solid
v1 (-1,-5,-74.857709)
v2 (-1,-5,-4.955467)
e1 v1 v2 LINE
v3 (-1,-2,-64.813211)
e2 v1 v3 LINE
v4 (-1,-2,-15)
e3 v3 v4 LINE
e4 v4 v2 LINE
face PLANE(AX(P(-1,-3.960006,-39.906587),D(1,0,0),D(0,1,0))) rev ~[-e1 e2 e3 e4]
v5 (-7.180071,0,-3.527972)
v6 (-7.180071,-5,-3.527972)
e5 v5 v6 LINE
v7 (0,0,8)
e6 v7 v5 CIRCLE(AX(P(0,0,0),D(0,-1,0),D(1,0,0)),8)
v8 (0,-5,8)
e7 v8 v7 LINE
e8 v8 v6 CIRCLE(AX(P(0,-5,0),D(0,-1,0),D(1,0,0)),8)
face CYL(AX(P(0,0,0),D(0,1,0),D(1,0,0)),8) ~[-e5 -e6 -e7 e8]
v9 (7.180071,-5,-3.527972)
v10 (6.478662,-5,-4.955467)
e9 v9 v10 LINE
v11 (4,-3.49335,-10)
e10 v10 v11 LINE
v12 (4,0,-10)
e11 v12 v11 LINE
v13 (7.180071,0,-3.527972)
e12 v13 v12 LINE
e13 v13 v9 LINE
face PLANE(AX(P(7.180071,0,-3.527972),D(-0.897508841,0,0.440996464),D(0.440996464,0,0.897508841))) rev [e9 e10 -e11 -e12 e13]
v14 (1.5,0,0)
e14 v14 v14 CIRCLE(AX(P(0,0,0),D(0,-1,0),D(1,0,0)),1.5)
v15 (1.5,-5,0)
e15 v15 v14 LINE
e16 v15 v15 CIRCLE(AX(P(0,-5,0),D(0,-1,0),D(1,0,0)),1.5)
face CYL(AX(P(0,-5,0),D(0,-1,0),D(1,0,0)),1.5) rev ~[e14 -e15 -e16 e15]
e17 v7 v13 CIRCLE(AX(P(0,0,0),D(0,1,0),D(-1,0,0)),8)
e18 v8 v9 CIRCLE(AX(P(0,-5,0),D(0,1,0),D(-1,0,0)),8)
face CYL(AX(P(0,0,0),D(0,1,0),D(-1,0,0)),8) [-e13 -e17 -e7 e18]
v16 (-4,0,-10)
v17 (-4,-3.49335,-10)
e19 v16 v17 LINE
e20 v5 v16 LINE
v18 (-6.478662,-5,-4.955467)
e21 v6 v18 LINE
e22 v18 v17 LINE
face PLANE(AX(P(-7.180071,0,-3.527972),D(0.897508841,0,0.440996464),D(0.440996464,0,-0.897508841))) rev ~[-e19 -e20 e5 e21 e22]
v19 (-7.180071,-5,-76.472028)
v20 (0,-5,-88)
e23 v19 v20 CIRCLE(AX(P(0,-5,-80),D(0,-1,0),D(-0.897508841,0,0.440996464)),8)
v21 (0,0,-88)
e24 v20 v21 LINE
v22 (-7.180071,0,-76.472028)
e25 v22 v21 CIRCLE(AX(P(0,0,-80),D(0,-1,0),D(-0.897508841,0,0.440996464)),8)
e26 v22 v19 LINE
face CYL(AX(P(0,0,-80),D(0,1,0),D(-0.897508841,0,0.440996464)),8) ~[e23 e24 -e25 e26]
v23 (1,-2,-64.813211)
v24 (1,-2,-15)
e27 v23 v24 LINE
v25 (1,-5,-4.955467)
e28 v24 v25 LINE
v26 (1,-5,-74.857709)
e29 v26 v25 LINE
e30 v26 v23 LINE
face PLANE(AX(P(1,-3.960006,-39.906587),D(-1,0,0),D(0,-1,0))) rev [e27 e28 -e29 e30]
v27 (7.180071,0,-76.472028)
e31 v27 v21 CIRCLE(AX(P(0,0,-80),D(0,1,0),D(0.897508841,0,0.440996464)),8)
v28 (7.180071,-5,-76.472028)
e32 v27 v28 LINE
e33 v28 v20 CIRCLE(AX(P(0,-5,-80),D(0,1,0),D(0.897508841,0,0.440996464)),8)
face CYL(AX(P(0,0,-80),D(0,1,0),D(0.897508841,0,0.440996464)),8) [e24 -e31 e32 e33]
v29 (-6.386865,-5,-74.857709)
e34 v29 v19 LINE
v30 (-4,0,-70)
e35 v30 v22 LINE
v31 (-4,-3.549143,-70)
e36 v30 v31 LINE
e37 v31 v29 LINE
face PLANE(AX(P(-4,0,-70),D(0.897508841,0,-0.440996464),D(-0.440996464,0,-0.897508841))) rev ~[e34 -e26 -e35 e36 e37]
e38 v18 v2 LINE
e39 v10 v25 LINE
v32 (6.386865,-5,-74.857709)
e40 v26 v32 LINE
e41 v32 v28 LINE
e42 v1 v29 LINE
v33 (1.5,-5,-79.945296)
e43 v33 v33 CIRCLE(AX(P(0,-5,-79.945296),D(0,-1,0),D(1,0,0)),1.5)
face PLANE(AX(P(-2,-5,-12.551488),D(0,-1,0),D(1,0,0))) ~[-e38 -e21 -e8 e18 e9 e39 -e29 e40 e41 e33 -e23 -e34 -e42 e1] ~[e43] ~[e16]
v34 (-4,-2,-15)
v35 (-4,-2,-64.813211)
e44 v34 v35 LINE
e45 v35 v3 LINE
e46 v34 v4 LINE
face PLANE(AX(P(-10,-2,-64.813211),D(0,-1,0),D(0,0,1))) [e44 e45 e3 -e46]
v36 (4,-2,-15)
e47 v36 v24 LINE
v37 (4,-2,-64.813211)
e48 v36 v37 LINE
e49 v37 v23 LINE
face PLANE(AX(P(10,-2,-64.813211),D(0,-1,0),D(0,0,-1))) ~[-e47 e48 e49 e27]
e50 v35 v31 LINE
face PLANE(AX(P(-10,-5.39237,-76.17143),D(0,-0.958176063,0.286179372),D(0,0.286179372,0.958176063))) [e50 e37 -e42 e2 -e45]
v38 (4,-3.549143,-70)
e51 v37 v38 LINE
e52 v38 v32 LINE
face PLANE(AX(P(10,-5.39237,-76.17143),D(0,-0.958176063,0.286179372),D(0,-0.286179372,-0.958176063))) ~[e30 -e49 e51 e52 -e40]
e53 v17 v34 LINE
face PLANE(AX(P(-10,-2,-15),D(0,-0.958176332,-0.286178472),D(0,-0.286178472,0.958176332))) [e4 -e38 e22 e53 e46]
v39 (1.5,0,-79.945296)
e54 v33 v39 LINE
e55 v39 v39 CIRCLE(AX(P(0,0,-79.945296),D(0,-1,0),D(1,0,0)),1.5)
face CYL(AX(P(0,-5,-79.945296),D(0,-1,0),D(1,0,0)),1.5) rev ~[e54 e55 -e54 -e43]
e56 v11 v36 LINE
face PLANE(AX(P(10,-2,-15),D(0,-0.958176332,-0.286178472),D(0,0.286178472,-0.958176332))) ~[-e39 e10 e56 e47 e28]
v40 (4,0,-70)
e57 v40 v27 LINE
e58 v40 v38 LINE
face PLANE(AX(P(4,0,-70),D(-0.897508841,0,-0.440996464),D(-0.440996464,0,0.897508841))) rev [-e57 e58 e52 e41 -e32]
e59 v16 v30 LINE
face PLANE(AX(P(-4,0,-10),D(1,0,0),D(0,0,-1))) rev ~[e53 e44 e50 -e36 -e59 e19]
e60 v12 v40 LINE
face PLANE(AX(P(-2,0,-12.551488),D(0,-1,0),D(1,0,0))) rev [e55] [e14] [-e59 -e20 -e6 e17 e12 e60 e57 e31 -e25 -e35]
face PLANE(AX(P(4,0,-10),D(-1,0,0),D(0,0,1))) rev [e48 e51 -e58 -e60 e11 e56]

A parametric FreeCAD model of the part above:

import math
import FreeCAD as App
import Part
import Sketcher

V = App.Vector

doc = App.newDocument("Part")
body = doc.addObject("PartDesign::Body", "Body")

# Sketch on XZ plane
sketch1 = body.newObject("Sketcher::SketchObject", "Sketch")
sketch1.AttachmentSupport = (doc.getObject("XZ_Plane"), [""])
sketch1.MapMode = "FlatFace"
sketch1.addGeometry([
    Part.LineSegment(V(-4, -10, 0), V(-4, -70, 0)),  # 0
    Part.LineSegment(V(-4, -70, 0), V(-7.180071, -76.472028, 0)),  # 1
    Part.ArcOfCircle(Part.Circle(V(0, -80, 0), V(0, 0, 1), 8), math.radians(153.832523), math.radians(360)),  # 2
    Part.ArcOfCircle(Part.Circle(V(0, -80, 0), V(0, 0, 1), 8), math.radians(0), math.radians(26.167477)),  # 3
    Part.LineSegment(V(7.180071, -76.472028, 0), V(4, -70, 0)),  # 4
    Part.LineSegment(V(4, -70, 0), V(4, -10, 0)),  # 5
    Part.LineSegment(V(4, -10, 0), V(7.180071, -3.527972, 0)),  # 6
    Part.ArcOfCircle(Part.Circle(V(0, 0, 0), V(0, 0, 1), 8), math.radians(-26.167477), math.radians(0)),  # 7
    Part.ArcOfCircle(Part.Circle(V(0, 0, 0), V(0, 0, 1), 8), math.radians(0), math.radians(206.167477)),  # 8
    Part.LineSegment(V(-7.180071, -3.527972, 0), V(-4, -10, 0)),  # 9
], False)
sketch1.addConstraint([
    Sketcher.Constraint("Coincident", 0, 2, 1, 1),
    Sketcher.Constraint("Tangent", 1, 2, 2, 1),
    Sketcher.Constraint("Tangent", 2, 2, 3, 1),
    Sketcher.Constraint("Tangent", 3, 2, 4, 1),
    Sketcher.Constraint("Coincident", 4, 2, 5, 1),
    Sketcher.Constraint("Coincident", 5, 2, 6, 1),
    Sketcher.Constraint("Tangent", 6, 2, 7, 1),
    Sketcher.Constraint("Tangent", 7, 2, 8, 1),
    Sketcher.Constraint("Tangent", 8, 2, 9, 1),
    Sketcher.Constraint("Coincident", 9, 2, 0, 1),
    Sketcher.Constraint("Vertical", 0),
    Sketcher.Constraint("Vertical", 5),
    Sketcher.Constraint("Coincident", 7, 3, -1, 1),
    Sketcher.Constraint("Equal", 2, 3),
    Sketcher.Constraint("Equal", 3, 7),
    Sketcher.Constraint("Equal", 7, 8),
    Sketcher.Constraint("Symmetric", 1, 2, 3, 2, -2),
    Sketcher.Constraint("Symmetric", 5, 2, 9, 2, -2),
    Sketcher.Constraint("PointOnObject", 7, 2, -1),
    Sketcher.Constraint("Parallel", 1, 6),
    Sketcher.Constraint("Horizontal", 3, 3, 2, 2),
    Sketcher.Constraint("Radius", 2, 8.0),
    Sketcher.Constraint("DistanceY", 0, 2, 0, 1, 60.0),
    Sketcher.Constraint("DistanceY", 2, 3, -1, 1, 80.0),
    Sketcher.Constraint("DistanceX", 0, 2, -1, 1, 4.0),
])
pad1 = body.newObject("PartDesign::Pad", "Pad")
pad1.Profile = sketch1
pad1.Length = 5

# Sketch on YZ plane
sketch2 = body.newObject("Sketcher::SketchObject", "Sketch001")
sketch2.AttachmentSupport = (doc.getObject("YZ_Plane"), [""])
sketch2.MapMode = "FlatFace"
sketch2.AttachmentOffset = App.Placement(V(0, 0, -10), App.Rotation())
sketch2.addGeometry([
    Part.LineSegment(V(-2, -64.813211, 0), V(-2, -15, 0)),
    Part.LineSegment(V(-2, -15, 0), V(-5.39237, -3.641742, 0)),
    Part.LineSegment(V(-5.39237, -3.641742, 0), V(-5.39237, -76.17143, 0)),
    Part.LineSegment(V(-5.39237, -76.17143, 0), V(-2, -64.813211, 0)),
], False)
sketch2.addConstraint([
    Sketcher.Constraint("Coincident", 0, 2, 1, 1),
    Sketcher.Constraint("Coincident", 1, 2, 2, 1),
    Sketcher.Constraint("Coincident", 2, 2, 3, 1),
    Sketcher.Constraint("Coincident", 3, 2, 0, 1),
    Sketcher.Constraint("Vertical", 0),
    Sketcher.Constraint("Vertical", 2),
    Sketcher.Constraint("DistanceX", 0, 2, -1, 1, 2.0),
    Sketcher.Constraint("DistanceY", 0, 2, -1, 1, 15.0),
    Sketcher.Constraint("Distance", 3, 11.854),
    Sketcher.Constraint("DistanceY", 0, 1, 0, 2, 49.813211),
    Sketcher.Constraint("DistanceY", 2, 2, 2, 1, 72.529688),
    Sketcher.Constraint("DistanceX", 1, 2, -1, 1, 5.39237),
])
pocket1 = body.newObject("PartDesign::Pocket", "Pocket")
pocket1.Profile = sketch2
pocket1.Length = 9
pocket1.Reversed = True

# Sketch on XZ plane
sketch3 = body.newObject("Sketcher::SketchObject", "Sketch002")
sketch3.AttachmentSupport = (doc.getObject("XZ_Plane"), [""])
sketch3.MapMode = "FlatFace"
sketch3.addGeometry([
    Part.LineSegment(V(0, 44.297259, 0), V(0, -93.592703, 0)),
    Part.LineSegment(V(0, -93.592703, 0), V(44.082083, -93.592703, 0)),
    Part.LineSegment(V(44.082083, -93.592703, 0), V(44.082083, 44.297259, 0)),
    Part.LineSegment(V(44.082083, 44.297259, 0), V(0, 44.297259, 0)),
], False)
sketch3.addConstraint([
    Sketcher.Constraint("Coincident", 0, 2, 1, 1),
    Sketcher.Constraint("Coincident", 1, 2, 2, 1),
    Sketcher.Constraint("Coincident", 2, 2, 3, 1),
    Sketcher.Constraint("Coincident", 3, 2, 0, 1),
    Sketcher.Constraint("Vertical", 0),
    Sketcher.Constraint("Horizontal", 1),
    Sketcher.Constraint("Vertical", 2),
    Sketcher.Constraint("Horizontal", 3),
    Sketcher.Constraint("PointOnObject", 0, 2, -2),
    Sketcher.Constraint("DistanceX", 1, 1, 1, 2, 44.082083),
    Sketcher.Constraint("DistanceY", 0, 2, 0, 1, 137.889963),
    Sketcher.Constraint("DistanceY", -1, 1, 2, 2, 44.297259),
])
pocket2 = body.newObject("PartDesign::Pocket", "Pocket001")
pocket2.Profile = sketch3
pocket2.Length = 50
pocket2.Midplane = True
body2 = doc.addObject("PartDesign::Body", "Body001")
doc.recompute()

body2.BaseFeature = body
doc.recompute()

mirroring = doc.addObject("Part::Mirroring", "Mirroring")
mirroring.Source = body
mirroring.Base = V(0, 0, 0)
mirroring.Normal = V(1, 0, 0)
body3 = doc.addObject("PartDesign::Body", "Body002")
body3.BaseFeature = mirroring
boolean = body2.newObject("PartDesign::Boolean", "Boolean")
boolean.Type = "Fuse"
boolean.addObjects([body3])
doc.recompute()

# Sketch on XZ plane
sketch4 = body2.newObject("Sketcher::SketchObject", "Sketch003")
sketch4.AttachmentSupport = (doc.getObject("XZ_Plane001"), [""])
sketch4.MapMode = "FlatFace"
sketch4.AttachmentOffset = App.Placement(V(0, 0, 5), App.Rotation())
sketch4.addGeometry([
    Part.Circle(V(0, 0, 0), V(0, 0, 1), 1.5),
    Part.Circle(V(0, -79.945296, 0), V(0, 0, 1), 1.5),
], False)
sketch4.addConstraint([
    Sketcher.Constraint("Coincident", 0, 3, -1, 1),
    Sketcher.Constraint("Equal", 0, 1),
    Sketcher.Constraint("PointOnObject", 1, 3, -2),
    Sketcher.Constraint("Diameter", 0, 3.0),
    Sketcher.Constraint("DistanceY", 1, 3, -1, 1, 79.945296),
])
pocket3 = body2.newObject("PartDesign::Pocket", "Pocket002")
pocket3.Profile = sketch4
pocket3.Length = 25
mirroring.Visibility = False

doc.recompute()
